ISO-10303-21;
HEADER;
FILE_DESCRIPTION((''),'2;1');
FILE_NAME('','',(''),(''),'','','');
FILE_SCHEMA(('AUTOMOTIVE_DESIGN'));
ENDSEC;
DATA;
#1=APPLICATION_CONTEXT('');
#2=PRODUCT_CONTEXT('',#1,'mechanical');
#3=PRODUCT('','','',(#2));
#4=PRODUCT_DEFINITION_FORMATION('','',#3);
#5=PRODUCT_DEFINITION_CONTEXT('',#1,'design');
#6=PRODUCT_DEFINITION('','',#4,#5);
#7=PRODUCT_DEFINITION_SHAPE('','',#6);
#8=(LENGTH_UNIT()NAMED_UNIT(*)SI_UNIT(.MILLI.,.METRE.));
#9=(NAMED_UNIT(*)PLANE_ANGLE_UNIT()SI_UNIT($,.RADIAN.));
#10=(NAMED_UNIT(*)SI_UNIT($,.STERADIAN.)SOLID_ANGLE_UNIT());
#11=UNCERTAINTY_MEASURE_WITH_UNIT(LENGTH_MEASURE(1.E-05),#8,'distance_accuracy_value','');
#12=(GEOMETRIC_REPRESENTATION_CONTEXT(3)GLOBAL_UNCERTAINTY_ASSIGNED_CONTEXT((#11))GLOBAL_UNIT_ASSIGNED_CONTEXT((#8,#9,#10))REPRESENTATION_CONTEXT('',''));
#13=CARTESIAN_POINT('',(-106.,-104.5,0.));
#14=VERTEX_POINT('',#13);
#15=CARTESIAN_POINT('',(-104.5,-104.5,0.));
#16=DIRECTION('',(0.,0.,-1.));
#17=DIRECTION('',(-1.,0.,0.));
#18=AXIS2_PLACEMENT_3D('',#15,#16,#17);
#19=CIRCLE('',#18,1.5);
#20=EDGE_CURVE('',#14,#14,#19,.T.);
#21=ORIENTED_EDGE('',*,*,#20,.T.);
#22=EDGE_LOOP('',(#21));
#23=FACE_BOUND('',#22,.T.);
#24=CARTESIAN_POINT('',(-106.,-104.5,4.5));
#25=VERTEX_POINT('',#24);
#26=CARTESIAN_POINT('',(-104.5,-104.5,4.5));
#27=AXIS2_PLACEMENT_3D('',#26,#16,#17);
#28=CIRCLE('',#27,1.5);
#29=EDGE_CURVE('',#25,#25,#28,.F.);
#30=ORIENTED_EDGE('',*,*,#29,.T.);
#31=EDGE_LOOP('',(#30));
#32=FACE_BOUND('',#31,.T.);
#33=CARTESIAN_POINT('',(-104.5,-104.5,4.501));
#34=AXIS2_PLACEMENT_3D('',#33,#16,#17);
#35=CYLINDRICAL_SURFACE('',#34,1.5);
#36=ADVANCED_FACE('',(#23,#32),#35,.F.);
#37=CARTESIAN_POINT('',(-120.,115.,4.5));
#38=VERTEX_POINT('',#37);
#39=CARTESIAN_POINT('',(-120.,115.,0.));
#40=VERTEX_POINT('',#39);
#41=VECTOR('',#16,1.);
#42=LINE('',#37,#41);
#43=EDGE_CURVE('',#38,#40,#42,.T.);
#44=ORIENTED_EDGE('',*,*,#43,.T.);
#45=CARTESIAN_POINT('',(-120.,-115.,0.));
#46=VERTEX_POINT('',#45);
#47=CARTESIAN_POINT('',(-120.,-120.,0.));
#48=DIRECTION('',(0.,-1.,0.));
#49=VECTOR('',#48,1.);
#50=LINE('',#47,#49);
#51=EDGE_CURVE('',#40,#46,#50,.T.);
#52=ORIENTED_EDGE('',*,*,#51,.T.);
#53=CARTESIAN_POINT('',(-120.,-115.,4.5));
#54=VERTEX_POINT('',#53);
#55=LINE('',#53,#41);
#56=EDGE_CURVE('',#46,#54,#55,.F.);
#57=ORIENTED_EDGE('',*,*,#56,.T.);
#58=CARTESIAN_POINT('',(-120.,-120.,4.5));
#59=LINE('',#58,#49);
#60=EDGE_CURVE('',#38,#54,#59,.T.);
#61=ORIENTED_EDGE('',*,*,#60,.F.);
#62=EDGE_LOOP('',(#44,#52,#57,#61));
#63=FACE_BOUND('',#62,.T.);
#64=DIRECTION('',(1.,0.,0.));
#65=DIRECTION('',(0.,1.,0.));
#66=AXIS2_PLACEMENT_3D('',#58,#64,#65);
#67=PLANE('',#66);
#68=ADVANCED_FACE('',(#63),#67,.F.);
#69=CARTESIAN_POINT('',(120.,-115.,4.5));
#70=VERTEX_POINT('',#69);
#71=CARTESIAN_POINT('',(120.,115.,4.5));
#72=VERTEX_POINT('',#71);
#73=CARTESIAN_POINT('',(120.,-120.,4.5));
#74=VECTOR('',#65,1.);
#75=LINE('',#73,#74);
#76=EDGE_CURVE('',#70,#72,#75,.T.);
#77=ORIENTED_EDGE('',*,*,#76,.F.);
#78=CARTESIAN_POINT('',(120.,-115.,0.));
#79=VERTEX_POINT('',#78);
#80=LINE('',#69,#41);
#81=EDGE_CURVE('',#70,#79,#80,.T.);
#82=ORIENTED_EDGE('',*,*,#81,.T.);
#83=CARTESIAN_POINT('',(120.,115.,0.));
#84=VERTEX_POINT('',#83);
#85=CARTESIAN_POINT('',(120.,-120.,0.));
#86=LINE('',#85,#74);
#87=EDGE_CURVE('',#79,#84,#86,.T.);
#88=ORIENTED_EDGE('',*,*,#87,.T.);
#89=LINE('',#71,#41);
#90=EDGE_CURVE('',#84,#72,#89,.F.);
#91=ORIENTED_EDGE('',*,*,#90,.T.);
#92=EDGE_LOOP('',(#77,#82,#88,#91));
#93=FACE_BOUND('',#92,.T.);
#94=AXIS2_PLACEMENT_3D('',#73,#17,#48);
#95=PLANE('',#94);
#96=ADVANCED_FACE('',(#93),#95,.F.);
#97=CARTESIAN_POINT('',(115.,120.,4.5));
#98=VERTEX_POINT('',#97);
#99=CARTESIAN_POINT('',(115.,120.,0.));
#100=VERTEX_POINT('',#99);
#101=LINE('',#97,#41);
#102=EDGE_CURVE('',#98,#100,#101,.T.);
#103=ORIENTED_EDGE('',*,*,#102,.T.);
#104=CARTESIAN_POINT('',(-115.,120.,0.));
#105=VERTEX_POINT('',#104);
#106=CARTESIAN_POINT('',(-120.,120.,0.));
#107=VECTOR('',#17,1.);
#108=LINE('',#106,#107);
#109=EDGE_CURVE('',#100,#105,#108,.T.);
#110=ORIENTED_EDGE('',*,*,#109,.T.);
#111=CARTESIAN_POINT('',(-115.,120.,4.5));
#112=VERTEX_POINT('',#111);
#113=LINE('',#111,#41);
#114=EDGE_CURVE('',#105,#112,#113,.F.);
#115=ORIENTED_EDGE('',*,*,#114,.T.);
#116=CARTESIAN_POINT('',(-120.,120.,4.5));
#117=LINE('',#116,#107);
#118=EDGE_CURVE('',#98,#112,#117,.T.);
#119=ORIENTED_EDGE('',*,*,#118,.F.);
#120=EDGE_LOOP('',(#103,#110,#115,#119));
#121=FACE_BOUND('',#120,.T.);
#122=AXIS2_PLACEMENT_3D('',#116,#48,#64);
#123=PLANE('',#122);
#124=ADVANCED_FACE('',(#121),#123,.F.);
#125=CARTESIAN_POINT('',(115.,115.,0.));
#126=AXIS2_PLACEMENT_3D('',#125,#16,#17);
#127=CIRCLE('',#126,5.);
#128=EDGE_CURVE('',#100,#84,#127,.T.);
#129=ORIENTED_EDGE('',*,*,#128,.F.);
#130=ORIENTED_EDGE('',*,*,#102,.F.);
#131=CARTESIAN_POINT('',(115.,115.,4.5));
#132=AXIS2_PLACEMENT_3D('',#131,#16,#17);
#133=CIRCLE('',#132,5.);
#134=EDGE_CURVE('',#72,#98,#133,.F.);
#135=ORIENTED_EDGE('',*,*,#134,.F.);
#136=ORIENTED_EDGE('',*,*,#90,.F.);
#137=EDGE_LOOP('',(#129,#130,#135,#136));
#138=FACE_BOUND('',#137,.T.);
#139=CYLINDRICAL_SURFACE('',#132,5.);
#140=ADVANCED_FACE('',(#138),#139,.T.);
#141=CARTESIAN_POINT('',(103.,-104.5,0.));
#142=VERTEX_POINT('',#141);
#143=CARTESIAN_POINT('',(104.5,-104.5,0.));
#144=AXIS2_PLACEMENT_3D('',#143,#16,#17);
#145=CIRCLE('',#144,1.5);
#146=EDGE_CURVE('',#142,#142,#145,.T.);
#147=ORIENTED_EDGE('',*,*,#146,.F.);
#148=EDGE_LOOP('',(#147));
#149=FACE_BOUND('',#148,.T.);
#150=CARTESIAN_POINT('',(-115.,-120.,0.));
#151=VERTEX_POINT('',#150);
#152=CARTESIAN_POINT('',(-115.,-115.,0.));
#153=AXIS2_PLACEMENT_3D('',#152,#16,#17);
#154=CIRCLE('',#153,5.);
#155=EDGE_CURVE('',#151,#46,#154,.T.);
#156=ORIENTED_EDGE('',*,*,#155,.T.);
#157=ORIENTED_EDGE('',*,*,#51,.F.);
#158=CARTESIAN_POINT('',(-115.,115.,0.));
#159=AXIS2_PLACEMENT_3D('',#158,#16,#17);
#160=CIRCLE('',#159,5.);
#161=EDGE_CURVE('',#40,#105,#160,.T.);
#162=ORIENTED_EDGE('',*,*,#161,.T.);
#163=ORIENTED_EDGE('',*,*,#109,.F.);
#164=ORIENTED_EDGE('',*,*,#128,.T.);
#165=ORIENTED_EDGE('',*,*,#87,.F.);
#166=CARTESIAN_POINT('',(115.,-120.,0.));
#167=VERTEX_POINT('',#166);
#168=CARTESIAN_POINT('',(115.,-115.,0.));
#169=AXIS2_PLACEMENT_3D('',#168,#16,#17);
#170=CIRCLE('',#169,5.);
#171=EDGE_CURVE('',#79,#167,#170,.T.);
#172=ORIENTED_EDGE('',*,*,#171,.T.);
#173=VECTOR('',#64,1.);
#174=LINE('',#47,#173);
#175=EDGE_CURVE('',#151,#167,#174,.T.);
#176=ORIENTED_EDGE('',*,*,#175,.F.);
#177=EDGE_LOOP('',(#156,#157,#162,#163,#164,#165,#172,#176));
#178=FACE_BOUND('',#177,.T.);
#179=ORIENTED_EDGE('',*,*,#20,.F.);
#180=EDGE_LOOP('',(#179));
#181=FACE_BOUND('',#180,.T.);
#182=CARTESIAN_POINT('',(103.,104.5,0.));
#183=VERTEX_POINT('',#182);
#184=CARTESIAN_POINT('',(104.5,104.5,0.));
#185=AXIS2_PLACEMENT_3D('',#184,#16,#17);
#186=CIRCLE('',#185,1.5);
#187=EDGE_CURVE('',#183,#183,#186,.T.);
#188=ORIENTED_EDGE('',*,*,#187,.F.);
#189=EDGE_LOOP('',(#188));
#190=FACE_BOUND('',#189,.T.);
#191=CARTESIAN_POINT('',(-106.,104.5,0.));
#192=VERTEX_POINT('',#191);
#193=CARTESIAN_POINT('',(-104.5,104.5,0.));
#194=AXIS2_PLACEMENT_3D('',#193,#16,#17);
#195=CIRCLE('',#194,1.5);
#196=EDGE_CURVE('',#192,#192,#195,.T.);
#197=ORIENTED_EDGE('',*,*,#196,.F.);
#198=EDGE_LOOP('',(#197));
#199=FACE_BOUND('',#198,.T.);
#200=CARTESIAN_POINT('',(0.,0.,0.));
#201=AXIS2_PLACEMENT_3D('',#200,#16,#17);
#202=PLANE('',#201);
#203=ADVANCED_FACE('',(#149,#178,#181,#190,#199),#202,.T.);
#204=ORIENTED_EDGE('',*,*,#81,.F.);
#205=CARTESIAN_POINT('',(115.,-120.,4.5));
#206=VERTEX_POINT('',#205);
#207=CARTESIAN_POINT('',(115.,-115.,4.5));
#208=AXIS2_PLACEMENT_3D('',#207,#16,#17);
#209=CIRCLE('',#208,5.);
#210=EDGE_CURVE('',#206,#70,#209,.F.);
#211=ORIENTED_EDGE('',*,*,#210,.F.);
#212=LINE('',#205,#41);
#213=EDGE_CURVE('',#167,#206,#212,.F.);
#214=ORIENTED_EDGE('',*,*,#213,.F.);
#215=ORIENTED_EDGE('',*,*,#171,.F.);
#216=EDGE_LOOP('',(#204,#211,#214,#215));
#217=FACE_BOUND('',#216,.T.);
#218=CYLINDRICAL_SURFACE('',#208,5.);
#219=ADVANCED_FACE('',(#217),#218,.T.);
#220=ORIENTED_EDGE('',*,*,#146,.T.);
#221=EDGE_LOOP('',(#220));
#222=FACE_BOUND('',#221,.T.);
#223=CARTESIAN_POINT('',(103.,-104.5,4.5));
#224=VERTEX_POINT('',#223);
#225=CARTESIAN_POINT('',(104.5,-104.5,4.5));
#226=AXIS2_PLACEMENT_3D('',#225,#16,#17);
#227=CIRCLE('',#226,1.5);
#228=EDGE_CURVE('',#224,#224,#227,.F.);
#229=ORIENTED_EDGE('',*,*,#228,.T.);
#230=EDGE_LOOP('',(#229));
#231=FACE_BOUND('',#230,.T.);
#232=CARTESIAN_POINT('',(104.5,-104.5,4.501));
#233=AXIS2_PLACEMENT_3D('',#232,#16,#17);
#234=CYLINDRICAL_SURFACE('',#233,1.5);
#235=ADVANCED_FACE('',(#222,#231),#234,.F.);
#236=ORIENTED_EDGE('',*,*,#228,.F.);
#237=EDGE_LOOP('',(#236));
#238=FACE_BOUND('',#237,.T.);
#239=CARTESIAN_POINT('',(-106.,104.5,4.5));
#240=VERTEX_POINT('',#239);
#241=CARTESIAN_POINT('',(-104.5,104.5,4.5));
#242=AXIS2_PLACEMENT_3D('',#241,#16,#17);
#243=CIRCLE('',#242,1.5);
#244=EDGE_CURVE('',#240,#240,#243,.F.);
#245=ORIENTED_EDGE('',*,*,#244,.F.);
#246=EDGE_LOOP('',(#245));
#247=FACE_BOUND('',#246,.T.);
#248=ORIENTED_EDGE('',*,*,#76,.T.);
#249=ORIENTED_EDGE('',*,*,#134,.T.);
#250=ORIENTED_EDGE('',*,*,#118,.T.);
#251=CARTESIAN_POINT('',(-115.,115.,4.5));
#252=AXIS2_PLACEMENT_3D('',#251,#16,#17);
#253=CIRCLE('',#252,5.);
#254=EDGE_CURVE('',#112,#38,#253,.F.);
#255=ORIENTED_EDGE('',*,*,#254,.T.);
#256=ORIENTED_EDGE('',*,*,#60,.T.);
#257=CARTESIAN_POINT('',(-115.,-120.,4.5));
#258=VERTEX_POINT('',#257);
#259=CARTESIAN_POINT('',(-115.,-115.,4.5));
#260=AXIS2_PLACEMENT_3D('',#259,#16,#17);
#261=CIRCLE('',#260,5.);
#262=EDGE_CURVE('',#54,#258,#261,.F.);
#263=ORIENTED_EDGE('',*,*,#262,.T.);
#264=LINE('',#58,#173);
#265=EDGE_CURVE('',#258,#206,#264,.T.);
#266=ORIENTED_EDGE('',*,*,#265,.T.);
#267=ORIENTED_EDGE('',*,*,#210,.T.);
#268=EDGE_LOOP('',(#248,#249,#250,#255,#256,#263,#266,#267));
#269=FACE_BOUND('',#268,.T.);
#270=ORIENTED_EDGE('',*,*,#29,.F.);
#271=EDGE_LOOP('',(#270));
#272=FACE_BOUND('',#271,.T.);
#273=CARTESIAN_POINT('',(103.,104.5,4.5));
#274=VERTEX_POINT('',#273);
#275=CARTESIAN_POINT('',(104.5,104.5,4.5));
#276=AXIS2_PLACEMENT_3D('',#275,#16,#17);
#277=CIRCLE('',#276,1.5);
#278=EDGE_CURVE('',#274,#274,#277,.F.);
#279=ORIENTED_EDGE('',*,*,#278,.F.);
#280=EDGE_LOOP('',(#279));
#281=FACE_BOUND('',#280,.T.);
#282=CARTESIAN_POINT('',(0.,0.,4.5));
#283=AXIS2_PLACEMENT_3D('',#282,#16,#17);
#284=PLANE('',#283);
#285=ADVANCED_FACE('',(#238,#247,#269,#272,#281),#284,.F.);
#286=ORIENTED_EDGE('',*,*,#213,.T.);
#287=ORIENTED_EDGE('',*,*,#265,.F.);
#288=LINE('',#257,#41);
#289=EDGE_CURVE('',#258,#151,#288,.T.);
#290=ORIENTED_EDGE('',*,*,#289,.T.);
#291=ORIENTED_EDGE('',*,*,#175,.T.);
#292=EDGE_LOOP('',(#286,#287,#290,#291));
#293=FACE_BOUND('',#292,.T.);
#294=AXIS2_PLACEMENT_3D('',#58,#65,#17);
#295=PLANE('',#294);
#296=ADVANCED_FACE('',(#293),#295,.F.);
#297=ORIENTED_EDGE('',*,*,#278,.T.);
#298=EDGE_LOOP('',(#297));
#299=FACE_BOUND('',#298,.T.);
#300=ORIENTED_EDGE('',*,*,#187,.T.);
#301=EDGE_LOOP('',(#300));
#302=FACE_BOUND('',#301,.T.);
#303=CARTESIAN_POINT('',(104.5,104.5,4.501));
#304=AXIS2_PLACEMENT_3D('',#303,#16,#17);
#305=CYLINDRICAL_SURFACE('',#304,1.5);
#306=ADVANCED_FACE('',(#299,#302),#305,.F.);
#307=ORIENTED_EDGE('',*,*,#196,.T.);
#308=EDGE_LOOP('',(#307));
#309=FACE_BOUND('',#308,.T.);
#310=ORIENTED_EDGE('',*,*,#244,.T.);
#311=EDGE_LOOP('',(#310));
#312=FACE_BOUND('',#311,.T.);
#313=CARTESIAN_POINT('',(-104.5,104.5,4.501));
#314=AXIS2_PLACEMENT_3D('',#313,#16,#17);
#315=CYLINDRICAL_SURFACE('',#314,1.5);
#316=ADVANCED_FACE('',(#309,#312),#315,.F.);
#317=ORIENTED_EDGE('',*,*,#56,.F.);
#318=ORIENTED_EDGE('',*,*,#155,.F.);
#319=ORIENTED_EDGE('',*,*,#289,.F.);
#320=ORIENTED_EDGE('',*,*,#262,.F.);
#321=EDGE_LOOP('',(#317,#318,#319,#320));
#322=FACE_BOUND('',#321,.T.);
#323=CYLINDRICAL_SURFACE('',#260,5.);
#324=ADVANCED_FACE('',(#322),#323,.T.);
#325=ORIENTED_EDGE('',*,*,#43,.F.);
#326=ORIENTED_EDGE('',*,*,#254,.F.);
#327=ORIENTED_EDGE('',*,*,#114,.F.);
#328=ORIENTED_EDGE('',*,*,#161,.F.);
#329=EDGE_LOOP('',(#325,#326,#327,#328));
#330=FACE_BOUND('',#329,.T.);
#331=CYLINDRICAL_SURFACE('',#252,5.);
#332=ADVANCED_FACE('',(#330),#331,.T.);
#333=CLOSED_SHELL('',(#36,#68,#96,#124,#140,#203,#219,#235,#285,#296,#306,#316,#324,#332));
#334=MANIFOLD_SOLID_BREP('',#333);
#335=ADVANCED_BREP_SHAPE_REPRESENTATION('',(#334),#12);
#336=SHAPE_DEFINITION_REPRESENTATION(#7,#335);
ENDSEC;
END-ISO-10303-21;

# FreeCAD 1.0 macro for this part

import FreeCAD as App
import Part
import Sketcher

V = App.Vector
Q = App.Units.Quantity


def edges_at(feature, points):
    """Names of the edges that pass closest to the given points."""
    edges = feature.Shape.Edges
    near = lambda p: min(range(len(edges)), key=lambda i: edges[i].distToShape(Part.Vertex(*p))[0])
    return sorted({f"Edge{near(p) + 1}" for p in points})


def add_polygon(sketch, points):
    """Adds a closed chain of lines whose ends are joined by coincident constraints."""
    first, n = sketch.GeometryCount, len(points)
    for a, b in zip(points, points[1:] + points[:1]):
        sketch.addGeometry(Part.LineSegment(App.Vector(*a, 0), App.Vector(*b, 0)), False)
    for i in range(n):
        sketch.addConstraint(Sketcher.Constraint("Coincident", first + i, 2, first + (i + 1) % n, 1))

doc = App.newDocument("Part")
params = doc.addObject("Spreadsheet::Sheet", "Params")
for row, (alias, value) in enumerate([
    ("sketch1_width", "240 mm"),
    ("pad1_length", "4.5 mm"),
    ("sketch2_diameter", "3 mm"),
    ("sketch3_diameter", "3 mm"),
    ("sketch4_diameter", "3 mm"),
    ("sketch5_diameter", "3 mm"),
    ("fillet_radius", "5 mm"),
], start=1):
    params.set(f"A{row}", alias)
    params.set(f"B{row}", "=" + value)
    params.setAlias(f"B{row}", alias)

body = doc.addObject("PartDesign::Body", "Body")

sketch1 = doc.addObject("Sketcher::SketchObject", "Sketch")
body.addObject(sketch1)
sketch1.AttachmentSupport = (doc.XY_Plane, [""])
sketch1.MapMode = "FlatFace"
add_polygon(sketch1, [(-120, 120), (-120, -120), (120, -120), (120, 120)])
sketch1.addConstraint(Sketcher.Constraint("Vertical", 0))
sketch1.addConstraint(Sketcher.Constraint("Horizontal", 1))
sketch1.addConstraint(Sketcher.Constraint("Vertical", 2))
sketch1.addConstraint(Sketcher.Constraint("Horizontal", 3))
sketch1.addConstraint(Sketcher.Constraint("Symmetric", 0, 2, 2, 2, -1, 1))
sketch1.addConstraint(Sketcher.Constraint("Equal", 3, 0))
sketch1.addConstraint(Sketcher.Constraint("DistanceX", 1, 1, 1, 2, Q("240 mm")))
sketch1.setExpression("Constraints[10]", "Params.sketch1_width")
pad1 = doc.addObject("PartDesign::Pad", "Pad")
body.addObject(pad1)
pad1.Profile = sketch1
pad1.setExpression("Length", "Params.pad1_length")

sketch2 = doc.addObject("Sketcher::SketchObject", "Sketch001")
body.addObject(sketch2)
sketch2.AttachmentSupport = (doc.XY_Plane, [""])
sketch2.MapMode = "FlatFace"
sketch2.addGeometry(Part.Circle(V(104.5, 104.5, 0), V(0, 0, 1), 1.5), False)
sketch2.addConstraint(Sketcher.Constraint("Diameter", 0, Q("3 mm")))
sketch2.addConstraint(Sketcher.Constraint("DistanceX", -1, 1, 0, 3, Q("104.5 mm")))
sketch2.addConstraint(Sketcher.Constraint("DistanceY", -1, 1, 0, 3, Q("104.5 mm")))
sketch2.setExpression("Constraints[0]", "Params.sketch2_diameter")
pocket1 = doc.addObject("PartDesign::Pocket", "Pocket")
body.addObject(pocket1)
pocket1.Profile = sketch2
pocket1.Type = "UpToFirst"
pocket1.Reversed = True

sketch3 = doc.addObject("Sketcher::SketchObject", "Sketch002")
body.addObject(sketch3)
sketch3.AttachmentSupport = (doc.XY_Plane, [""])
sketch3.MapMode = "FlatFace"
sketch3.addGeometry(Part.Circle(V(-104.5, 104.5, 0), V(0, 0, 1), 1.5), False)
sketch3.addConstraint(Sketcher.Constraint("Diameter", 0, Q("3 mm")))
sketch3.addConstraint(Sketcher.Constraint("DistanceX", 0, 3, -1, 1, Q("104.5 mm")))
sketch3.addConstraint(Sketcher.Constraint("DistanceY", -1, 1, 0, 3, Q("104.5 mm")))
sketch3.setExpression("Constraints[0]", "Params.sketch3_diameter")
pocket2 = doc.addObject("PartDesign::Pocket", "Pocket001")
body.addObject(pocket2)
pocket2.Profile = sketch3
pocket2.Type = "UpToFirst"
pocket2.Reversed = True

sketch4 = doc.addObject("Sketcher::SketchObject", "Sketch003")
body.addObject(sketch4)
sketch4.AttachmentSupport = (doc.XY_Plane, [""])
sketch4.MapMode = "FlatFace"
sketch4.addGeometry(Part.Circle(V(104.5, -104.5, 0), V(0, 0, 1), 1.5), False)
sketch4.addConstraint(Sketcher.Constraint("Diameter", 0, Q("3 mm")))
sketch4.addConstraint(Sketcher.Constraint("DistanceX", -1, 1, 0, 3, Q("104.5 mm")))
sketch4.addConstraint(Sketcher.Constraint("DistanceY", 0, 3, -1, 1, Q("104.5 mm")))
sketch4.setExpression("Constraints[0]", "Params.sketch4_diameter")
pocket3 = doc.addObject("PartDesign::Pocket", "Pocket002")
body.addObject(pocket3)
pocket3.Profile = sketch4
pocket3.Type = "UpToFirst"
pocket3.Reversed = True

sketch5 = doc.addObject("Sketcher::SketchObject", "Sketch004")
body.addObject(sketch5)
sketch5.AttachmentSupport = (doc.XY_Plane, [""])
sketch5.MapMode = "FlatFace"
sketch5.addGeometry(Part.Circle(V(-104.5, -104.5, 0), V(0, 0, 1), 1.5), False)
sketch5.addConstraint(Sketcher.Constraint("Diameter", 0, Q("3 mm")))
sketch5.addConstraint(Sketcher.Constraint("DistanceX", 0, 3, -1, 1, Q("104.5 mm")))
sketch5.addConstraint(Sketcher.Constraint("DistanceY", 0, 3, -1, 1, Q("104.5 mm")))
sketch5.setExpression("Constraints[0]", "Params.sketch5_diameter")
pocket4 = doc.addObject("PartDesign::Pocket", "Pocket003")
body.addObject(pocket4)
pocket4.Profile = sketch5
pocket4.Type = "UpToFirst"
pocket4.Reversed = True
doc.recompute()

fillet = doc.addObject("PartDesign::Fillet", "Fillet")
body.addObject(fillet)
fillet.Base = (pocket4, edges_at(pocket4, [
    (120, -120, 2.25),
    (-120, -120, 2.25),
    (-120, 120, 2.25),
    (120, 120, 2.25),
]))
fillet.setExpression("Radius", "Params.fillet_radius")

doc.recompute()
